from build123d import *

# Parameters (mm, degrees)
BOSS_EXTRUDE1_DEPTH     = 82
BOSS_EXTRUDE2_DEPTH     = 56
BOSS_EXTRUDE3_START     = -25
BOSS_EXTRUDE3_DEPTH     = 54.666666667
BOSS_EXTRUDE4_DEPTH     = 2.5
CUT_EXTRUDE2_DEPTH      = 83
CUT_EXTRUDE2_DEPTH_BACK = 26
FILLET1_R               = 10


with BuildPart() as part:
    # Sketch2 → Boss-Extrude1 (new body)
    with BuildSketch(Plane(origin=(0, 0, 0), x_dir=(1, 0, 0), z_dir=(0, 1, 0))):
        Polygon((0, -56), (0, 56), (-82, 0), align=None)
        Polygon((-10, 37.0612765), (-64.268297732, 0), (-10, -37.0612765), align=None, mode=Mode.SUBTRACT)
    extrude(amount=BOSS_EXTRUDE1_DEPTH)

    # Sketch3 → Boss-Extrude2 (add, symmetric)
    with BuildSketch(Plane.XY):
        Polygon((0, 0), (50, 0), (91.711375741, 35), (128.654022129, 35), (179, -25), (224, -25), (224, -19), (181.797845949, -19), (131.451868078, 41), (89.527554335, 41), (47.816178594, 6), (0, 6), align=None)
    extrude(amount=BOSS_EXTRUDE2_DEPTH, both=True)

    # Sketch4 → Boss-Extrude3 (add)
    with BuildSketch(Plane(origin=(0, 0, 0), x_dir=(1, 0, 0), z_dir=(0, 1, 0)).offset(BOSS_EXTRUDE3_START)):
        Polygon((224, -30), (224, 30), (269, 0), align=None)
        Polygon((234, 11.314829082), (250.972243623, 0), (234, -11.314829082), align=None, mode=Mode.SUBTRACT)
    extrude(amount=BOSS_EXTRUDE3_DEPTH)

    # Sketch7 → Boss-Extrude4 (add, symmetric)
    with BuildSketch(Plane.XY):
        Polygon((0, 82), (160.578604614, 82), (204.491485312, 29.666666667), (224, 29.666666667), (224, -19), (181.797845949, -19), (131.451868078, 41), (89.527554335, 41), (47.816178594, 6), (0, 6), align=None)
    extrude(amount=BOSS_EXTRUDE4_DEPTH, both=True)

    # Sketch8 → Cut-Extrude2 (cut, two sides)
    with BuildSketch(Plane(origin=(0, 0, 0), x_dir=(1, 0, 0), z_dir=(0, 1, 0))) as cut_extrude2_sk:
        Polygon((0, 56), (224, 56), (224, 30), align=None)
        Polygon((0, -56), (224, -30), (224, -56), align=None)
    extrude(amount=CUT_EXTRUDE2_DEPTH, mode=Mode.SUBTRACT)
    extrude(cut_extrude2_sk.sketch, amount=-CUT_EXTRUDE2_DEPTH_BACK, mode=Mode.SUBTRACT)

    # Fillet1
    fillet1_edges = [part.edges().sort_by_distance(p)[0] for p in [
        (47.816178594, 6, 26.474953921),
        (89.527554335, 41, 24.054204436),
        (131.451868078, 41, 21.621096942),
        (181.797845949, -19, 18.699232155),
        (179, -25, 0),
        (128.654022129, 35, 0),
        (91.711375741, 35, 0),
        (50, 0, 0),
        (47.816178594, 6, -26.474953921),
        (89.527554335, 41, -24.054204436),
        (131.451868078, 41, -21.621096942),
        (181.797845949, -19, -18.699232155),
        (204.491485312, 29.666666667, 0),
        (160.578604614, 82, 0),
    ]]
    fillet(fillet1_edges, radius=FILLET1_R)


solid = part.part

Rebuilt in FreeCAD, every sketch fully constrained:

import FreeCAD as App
import Part
import Sketcher
Q = App.Units.Quantity


def edges_at(feature, points):
    """Names of the edges that pass closest to the given points."""
    edges = feature.Shape.Edges
    near = lambda p: min(range(len(edges)), key=lambda i: edges[i].distToShape(Part.Vertex(*p))[0])
    return sorted({f"Edge{near(p) + 1}" for p in points})

doc = App.newDocument("Part")
body = doc.addObject("PartDesign::Body", "Body")

# Sketch on XZ plane
sketch1 = body.newObject("Sketcher::SketchObject", "Sketch")
sketch1.AttachmentSupport = (doc.getObject("XZ_Plane"), [""])
sketch1.MapMode = "FlatFace"
sketch1.addGeometry([
    Part.LineSegment(App.Vector(0, 56, 0), App.Vector(0, -56, 0)),  # 0
    Part.LineSegment(App.Vector(0, -56, 0), App.Vector(-82, 0, 0)),  # 1
    Part.LineSegment(App.Vector(-82, 0, 0), App.Vector(0, 56, 0)),  # 2
    Part.LineSegment(App.Vector(-64, 0, 0), App.Vector(-10, -37, 0)),  # 3
    Part.LineSegment(App.Vector(-10, -37, 0), App.Vector(-10, 37, 0)),  # 4
    Part.LineSegment(App.Vector(-10, 37, 0), App.Vector(-64, 0, 0)),  # 5
], False)
sketch1.addConstraint([
    Sketcher.Constraint("Coincident", 0, 2, 1, 1),
    Sketcher.Constraint("Coincident", 1, 2, 2, 1),
    Sketcher.Constraint("Coincident", 2, 2, 0, 1),
    Sketcher.Constraint("Coincident", 3, 2, 4, 1),
    Sketcher.Constraint("Coincident", 4, 2, 5, 1),
    Sketcher.Constraint("Coincident", 5, 2, 3, 1),
    Sketcher.Constraint("Vertical", 0),
    Sketcher.Constraint("Vertical", 4),
    Sketcher.Constraint("Symmetric", 0, 2, 2, 2, -1, 1),
    Sketcher.Constraint("PointOnObject", 1, 2, -1),
    Sketcher.Constraint("PointOnObject", 5, 2, -1),
    Sketcher.Constraint("Parallel", 1, 3),
    Sketcher.Constraint("Parallel", 2, 5),
    Sketcher.Constraint("DistanceY", 0, 2, 0, 1, 112.0),
    Sketcher.Constraint("DistanceX", 1, 2, -1, 1, 82.0),
    Sketcher.Constraint("DistanceX", 3, 2, -1, 1, 10.0),
    Sketcher.Constraint("DistanceY", 4, 1, 4, 2, 74.122553),
])
pad1 = body.newObject("PartDesign::Pad", "Pad")
pad1.Profile = sketch1
pad1.Length = 82
pad1.Reversed = True

# Sketch on XY plane
sketch2 = body.newObject("Sketcher::SketchObject", "Sketch001")
sketch2.AttachmentSupport = (doc.getObject("XY_Plane"), [""])
sketch2.MapMode = "FlatFace"
sketch2.addGeometry([
    Part.LineSegment(App.Vector(0, 0, 0), App.Vector(50, 0, 0)),  # 0
    Part.LineSegment(App.Vector(50, 0, 0), App.Vector(92, 35, 0)),  # 1
    Part.LineSegment(App.Vector(92, 35, 0), App.Vector(129, 35, 0)),  # 2
    Part.LineSegment(App.Vector(129, 35, 0), App.Vector(179, -25, 0)),  # 3
    Part.LineSegment(App.Vector(179, -25, 0), App.Vector(224, -25, 0)),  # 4
    Part.LineSegment(App.Vector(224, -25, 0), App.Vector(224, -19, 0)),  # 5
    Part.LineSegment(App.Vector(224, -19, 0), App.Vector(182, -19, 0)),  # 6
    Part.LineSegment(App.Vector(182, -19, 0), App.Vector(131, 41, 0)),  # 7
    Part.LineSegment(App.Vector(131, 41, 0), App.Vector(90, 41, 0)),  # 8
    Part.LineSegment(App.Vector(90, 41, 0), App.Vector(48, 6, 0)),  # 9
    Part.LineSegment(App.Vector(48, 6, 0), App.Vector(0, 6, 0)),  # 10
    Part.LineSegment(App.Vector(0, 6, 0), App.Vector(0, 0, 0)),  # 11
], False)
sketch2.addConstraint([
    Sketcher.Constraint("Coincident", 0, 2, 1, 1),
    Sketcher.Constraint("Coincident", 1, 2, 2, 1),
    Sketcher.Constraint("Coincident", 2, 2, 3, 1),
    Sketcher.Constraint("Coincident", 3, 2, 4, 1),
    Sketcher.Constraint("Coincident", 4, 2, 5, 1),
    Sketcher.Constraint("Coincident", 5, 2, 6, 1),
    Sketcher.Constraint("Coincident", 6, 2, 7, 1),
    Sketcher.Constraint("Coincident", 7, 2, 8, 1),
    Sketcher.Constraint("Coincident", 8, 2, 9, 1),
    Sketcher.Constraint("Coincident", 9, 2, 10, 1),
    Sketcher.Constraint("Coincident", 10, 2, 11, 1),
    Sketcher.Constraint("Coincident", 11, 2, 0, 1),
    Sketcher.Constraint("Horizontal", 0),
    Sketcher.Constraint("Horizontal", 2),
    Sketcher.Constraint("Horizontal", 4),
    Sketcher.Constraint("Vertical", 5),
    Sketcher.Constraint("Horizontal", 6),
    Sketcher.Constraint("Horizontal", 8),
    Sketcher.Constraint("Horizontal", 10),
    Sketcher.Constraint("Vertical", 11),
    Sketcher.Constraint("Coincident", 11, 2, -1, 1),
    Sketcher.Constraint("Perpendicular", 1, 3),
    Sketcher.Constraint("Parallel", 3, 7),
    Sketcher.Constraint("Perpendicular", 7, 9),
    Sketcher.Constraint("Equal", 5, 11),
    Sketcher.Constraint("Equal", 3, 7),
    Sketcher.Constraint("DistanceX", 0, 1, 0, 2, 50.0),
    Sketcher.Constraint("DistanceX", 4, 1, 4, 2, 45.0),
    Sketcher.Constraint("DistanceY", 5, 1, 5, 2, 6.0),
    Sketcher.Constraint("Angle", 1, Q("40 deg")),
    Sketcher.Constraint("DistanceY", -1, 1, 1, 2, 35.0),
    Sketcher.Constraint("DistanceX", -1, 1, 3, 2, 179.0),
    Sketcher.Constraint("DistanceY", 3, 2, -1, 1, 25.0),
    Sketcher.Constraint("DistanceX", 10, 2, 10, 1, 47.816179),
    Sketcher.Constraint("DistanceX", 6, 2, 6, 1, 42.202154),
])
pad2 = body.newObject("PartDesign::Pad", "Pad001")
pad2.Profile = sketch2
pad2.Length = 112
pad2.Midplane = True

# Sketch on XZ plane
sketch3 = body.newObject("Sketcher::SketchObject", "Sketch002")
sketch3.AttachmentSupport = (doc.getObject("XZ_Plane"), [""])
sketch3.MapMode = "FlatFace"
sketch3.AttachmentOffset = App.Placement(App.Vector(0, 0, 25), App.Rotation())
sketch3.addGeometry([
    Part.LineSegment(App.Vector(224, -30, 0), App.Vector(224, 30, 0)),  # 0
    Part.LineSegment(App.Vector(224, 30, 0), App.Vector(269, 0, 0)),  # 1
    Part.LineSegment(App.Vector(269, 0, 0), App.Vector(224, -30, 0)),  # 2
    Part.LineSegment(App.Vector(234, -11, 0), App.Vector(251, 0, 0)),  # 3
    Part.LineSegment(App.Vector(251, 0, 0), App.Vector(234, 11, 0)),  # 4
    Part.LineSegment(App.Vector(234, 11, 0), App.Vector(234, -11, 0)),  # 5
], False)
sketch3.addConstraint([
    Sketcher.Constraint("Coincident", 0, 2, 1, 1),
    Sketcher.Constraint("Coincident", 1, 2, 2, 1),
    Sketcher.Constraint("Coincident", 2, 2, 0, 1),
    Sketcher.Constraint("Coincident", 3, 2, 4, 1),
    Sketcher.Constraint("Coincident", 4, 2, 5, 1),
    Sketcher.Constraint("Coincident", 5, 2, 3, 1),
    Sketcher.Constraint("Vertical", 0),
    Sketcher.Constraint("Vertical", 5),
    Sketcher.Constraint("PointOnObject", 1, 2, -1),
    Sketcher.Constraint("PointOnObject", 3, 2, -1),
    Sketcher.Constraint("Parallel", 2, 3),
    Sketcher.Constraint("Parallel", 1, 4),
    Sketcher.Constraint("Equal", 1, 2),
    Sketcher.Constraint("DistanceY", 0, 1, 0, 2, 60.0),
    Sketcher.Constraint("DistanceX", -1, 1, 0, 2, 224.0),
    Sketcher.Constraint("DistanceX", -1, 1, 1, 2, 269.0),
    Sketcher.Constraint("DistanceX", -1, 1, 4, 2, 234.0),
    Sketcher.Constraint("Distance", 3, 20.398098),
])
pad3 = body.newObject("PartDesign::Pad", "Pad002")
pad3.Profile = sketch3
pad3.Length = 54.666667
pad3.Reversed = True

# Sketch on XY plane
sketch4 = body.newObject("Sketcher::SketchObject", "Sketch003")
sketch4.AttachmentSupport = (doc.getObject("XY_Plane"), [""])
sketch4.MapMode = "FlatFace"
sketch4.addGeometry([
    Part.LineSegment(App.Vector(161, 82, 0), App.Vector(0, 82, 0)),  # 0
    Part.LineSegment(App.Vector(0, 82, 0), App.Vector(0, 6, 0)),  # 1
    Part.LineSegment(App.Vector(0, 6, 0), App.Vector(48, 6, 0)),  # 2
    Part.LineSegment(App.Vector(48, 6, 0), App.Vector(90, 41, 0)),  # 3
    Part.LineSegment(App.Vector(90, 41, 0), App.Vector(131, 41, 0)),  # 4
    Part.LineSegment(App.Vector(131, 41, 0), App.Vector(182, -19, 0)),  # 5
    Part.LineSegment(App.Vector(182, -19, 0), App.Vector(224, -19, 0)),  # 6
    Part.LineSegment(App.Vector(224, -19, 0), App.Vector(224, 30, 0)),  # 7
    Part.LineSegment(App.Vector(224, 30, 0), App.Vector(204, 30, 0)),  # 8
    Part.LineSegment(App.Vector(204, 30, 0), App.Vector(161, 82, 0)),  # 9
], False)
sketch4.addConstraint([
    Sketcher.Constraint("Coincident", 0, 2, 1, 1),
    Sketcher.Constraint("Coincident", 1, 2, 2, 1),
    Sketcher.Constraint("Coincident", 2, 2, 3, 1),
    Sketcher.Constraint("Coincident", 3, 2, 4, 1),
    Sketcher.Constraint("Coincident", 4, 2, 5, 1),
    Sketcher.Constraint("Coincident", 5, 2, 6, 1),
    Sketcher.Constraint("Coincident", 6, 2, 7, 1),
    Sketcher.Constraint("Coincident", 7, 2, 8, 1),
    Sketcher.Constraint("Coincident", 8, 2, 9, 1),
    Sketcher.Constraint("Coincident", 9, 2, 0, 1),
    Sketcher.Constraint("Horizontal", 0),
    Sketcher.Constraint("Vertical", 1),
    Sketcher.Constraint("Horizontal", 2),
    Sketcher.Constraint("Horizontal", 4),
    Sketcher.Constraint("Horizontal", 6),
    Sketcher.Constraint("Vertical", 7),
    Sketcher.Constraint("Horizontal", 8),
    Sketcher.Constraint("PointOnObject", 0, 2, -2),
    Sketcher.Constraint("Perpendicular", 3, 5),
    Sketcher.Constraint("Parallel", 5, 9),
    Sketcher.Constraint("DistanceY", 1, 2, 1, 1, 76.0),
    Sketcher.Constraint("Angle", 3, Q("40 deg")),
    Sketcher.Constraint("DistanceY", -1, 1, 0, 2, 82.0),
    Sketcher.Constraint("DistanceY", -1, 1, 3, 2, 41.0),
    Sketcher.Constraint("DistanceY", 5, 2, -1, 1, 19.0),
    Sketcher.Constraint("DistanceX", -1, 1, 6, 2, 224.0),
    Sketcher.Constraint("DistanceX", 2, 1, 2, 2, 47.816179),
    Sketcher.Constraint("DistanceX", 0, 2, 0, 1, 160.578605),
    Sketcher.Constraint("DistanceX", 4, 1, 4, 2, 41.924314),
    Sketcher.Constraint("DistanceX", 8, 2, 8, 1, 19.508515),
])
pad4 = body.newObject("PartDesign::Pad", "Pad003")
pad4.Profile = sketch4
pad4.Length = 5
pad4.Midplane = True

# Sketch on XZ plane
sketch5 = body.newObject("Sketcher::SketchObject", "Sketch004")
sketch5.AttachmentSupport = (doc.getObject("XZ_Plane"), [""])
sketch5.MapMode = "FlatFace"
sketch5.addGeometry([
    Part.LineSegment(App.Vector(224, -56, 0), App.Vector(0, -56, 0)),  # 0
    Part.LineSegment(App.Vector(0, -56, 0), App.Vector(224, -30, 0)),  # 1
    Part.LineSegment(App.Vector(224, -30, 0), App.Vector(224, -56, 0)),  # 2
    Part.LineSegment(App.Vector(224, 30, 0), App.Vector(0, 56, 0)),  # 3
    Part.LineSegment(App.Vector(0, 56, 0), App.Vector(224, 56, 0)),  # 4
    Part.LineSegment(App.Vector(224, 56, 0), App.Vector(224, 30, 0)),  # 5
], False)
sketch5.addConstraint([
    Sketcher.Constraint("Coincident", 0, 2, 1, 1),
    Sketcher.Constraint("Coincident", 1, 2, 2, 1),
    Sketcher.Constraint("Coincident", 2, 2, 0, 1),
    Sketcher.Constraint("Coincident", 3, 2, 4, 1),
    Sketcher.Constraint("Coincident", 4, 2, 5, 1),
    Sketcher.Constraint("Coincident", 5, 2, 3, 1),
    Sketcher.Constraint("Horizontal", 0),
    Sketcher.Constraint("Vertical", 2),
    Sketcher.Constraint("Horizontal", 4),
    Sketcher.Constraint("Vertical", 5),
    Sketcher.Constraint("Symmetric", 0, 2, 3, 2, -1, 1),
    Sketcher.Constraint("Symmetric", 1, 2, 5, 2, -1),
    Sketcher.Constraint("PointOnObject", 0, 2, -2),
    Sketcher.Constraint("DistanceX", 0, 2, 0, 1, 224.0),
    Sketcher.Constraint("DistanceY", 2, 2, 2, 1, 26.0),
    Sketcher.Constraint("DistanceY", 0, 2, -1, 1, 56.0),
])
pocket1 = body.newObject("PartDesign::Pocket", "Pocket")
pocket1.Profile = sketch5
pocket1.Type = "ThroughAll"
pocket1.Midplane = True
doc.recompute()

fillet = body.newObject("PartDesign::Fillet", "Fillet")
fillet.Base = (pocket1, edges_at(pocket1, [
    (47.816, 6, 26.475),
    (89.528, 41, 24.054),
    (131.452, 41, 21.621),
    (181.798, -19, 18.699),
    (179, -25, 0),
    (128.654, 35, 0),
    (91.711, 35, 0),
    (50, 0, 0),
    (47.816, 6, -26.475),
    (89.528, 41, -24.054),
    (131.452, 41, -21.621),
    (181.798, -19, -18.699),
    (204.491, 29.667, 0),
    (160.579, 82, 0),
]))
fillet.Radius = 10

doc.recompute()
